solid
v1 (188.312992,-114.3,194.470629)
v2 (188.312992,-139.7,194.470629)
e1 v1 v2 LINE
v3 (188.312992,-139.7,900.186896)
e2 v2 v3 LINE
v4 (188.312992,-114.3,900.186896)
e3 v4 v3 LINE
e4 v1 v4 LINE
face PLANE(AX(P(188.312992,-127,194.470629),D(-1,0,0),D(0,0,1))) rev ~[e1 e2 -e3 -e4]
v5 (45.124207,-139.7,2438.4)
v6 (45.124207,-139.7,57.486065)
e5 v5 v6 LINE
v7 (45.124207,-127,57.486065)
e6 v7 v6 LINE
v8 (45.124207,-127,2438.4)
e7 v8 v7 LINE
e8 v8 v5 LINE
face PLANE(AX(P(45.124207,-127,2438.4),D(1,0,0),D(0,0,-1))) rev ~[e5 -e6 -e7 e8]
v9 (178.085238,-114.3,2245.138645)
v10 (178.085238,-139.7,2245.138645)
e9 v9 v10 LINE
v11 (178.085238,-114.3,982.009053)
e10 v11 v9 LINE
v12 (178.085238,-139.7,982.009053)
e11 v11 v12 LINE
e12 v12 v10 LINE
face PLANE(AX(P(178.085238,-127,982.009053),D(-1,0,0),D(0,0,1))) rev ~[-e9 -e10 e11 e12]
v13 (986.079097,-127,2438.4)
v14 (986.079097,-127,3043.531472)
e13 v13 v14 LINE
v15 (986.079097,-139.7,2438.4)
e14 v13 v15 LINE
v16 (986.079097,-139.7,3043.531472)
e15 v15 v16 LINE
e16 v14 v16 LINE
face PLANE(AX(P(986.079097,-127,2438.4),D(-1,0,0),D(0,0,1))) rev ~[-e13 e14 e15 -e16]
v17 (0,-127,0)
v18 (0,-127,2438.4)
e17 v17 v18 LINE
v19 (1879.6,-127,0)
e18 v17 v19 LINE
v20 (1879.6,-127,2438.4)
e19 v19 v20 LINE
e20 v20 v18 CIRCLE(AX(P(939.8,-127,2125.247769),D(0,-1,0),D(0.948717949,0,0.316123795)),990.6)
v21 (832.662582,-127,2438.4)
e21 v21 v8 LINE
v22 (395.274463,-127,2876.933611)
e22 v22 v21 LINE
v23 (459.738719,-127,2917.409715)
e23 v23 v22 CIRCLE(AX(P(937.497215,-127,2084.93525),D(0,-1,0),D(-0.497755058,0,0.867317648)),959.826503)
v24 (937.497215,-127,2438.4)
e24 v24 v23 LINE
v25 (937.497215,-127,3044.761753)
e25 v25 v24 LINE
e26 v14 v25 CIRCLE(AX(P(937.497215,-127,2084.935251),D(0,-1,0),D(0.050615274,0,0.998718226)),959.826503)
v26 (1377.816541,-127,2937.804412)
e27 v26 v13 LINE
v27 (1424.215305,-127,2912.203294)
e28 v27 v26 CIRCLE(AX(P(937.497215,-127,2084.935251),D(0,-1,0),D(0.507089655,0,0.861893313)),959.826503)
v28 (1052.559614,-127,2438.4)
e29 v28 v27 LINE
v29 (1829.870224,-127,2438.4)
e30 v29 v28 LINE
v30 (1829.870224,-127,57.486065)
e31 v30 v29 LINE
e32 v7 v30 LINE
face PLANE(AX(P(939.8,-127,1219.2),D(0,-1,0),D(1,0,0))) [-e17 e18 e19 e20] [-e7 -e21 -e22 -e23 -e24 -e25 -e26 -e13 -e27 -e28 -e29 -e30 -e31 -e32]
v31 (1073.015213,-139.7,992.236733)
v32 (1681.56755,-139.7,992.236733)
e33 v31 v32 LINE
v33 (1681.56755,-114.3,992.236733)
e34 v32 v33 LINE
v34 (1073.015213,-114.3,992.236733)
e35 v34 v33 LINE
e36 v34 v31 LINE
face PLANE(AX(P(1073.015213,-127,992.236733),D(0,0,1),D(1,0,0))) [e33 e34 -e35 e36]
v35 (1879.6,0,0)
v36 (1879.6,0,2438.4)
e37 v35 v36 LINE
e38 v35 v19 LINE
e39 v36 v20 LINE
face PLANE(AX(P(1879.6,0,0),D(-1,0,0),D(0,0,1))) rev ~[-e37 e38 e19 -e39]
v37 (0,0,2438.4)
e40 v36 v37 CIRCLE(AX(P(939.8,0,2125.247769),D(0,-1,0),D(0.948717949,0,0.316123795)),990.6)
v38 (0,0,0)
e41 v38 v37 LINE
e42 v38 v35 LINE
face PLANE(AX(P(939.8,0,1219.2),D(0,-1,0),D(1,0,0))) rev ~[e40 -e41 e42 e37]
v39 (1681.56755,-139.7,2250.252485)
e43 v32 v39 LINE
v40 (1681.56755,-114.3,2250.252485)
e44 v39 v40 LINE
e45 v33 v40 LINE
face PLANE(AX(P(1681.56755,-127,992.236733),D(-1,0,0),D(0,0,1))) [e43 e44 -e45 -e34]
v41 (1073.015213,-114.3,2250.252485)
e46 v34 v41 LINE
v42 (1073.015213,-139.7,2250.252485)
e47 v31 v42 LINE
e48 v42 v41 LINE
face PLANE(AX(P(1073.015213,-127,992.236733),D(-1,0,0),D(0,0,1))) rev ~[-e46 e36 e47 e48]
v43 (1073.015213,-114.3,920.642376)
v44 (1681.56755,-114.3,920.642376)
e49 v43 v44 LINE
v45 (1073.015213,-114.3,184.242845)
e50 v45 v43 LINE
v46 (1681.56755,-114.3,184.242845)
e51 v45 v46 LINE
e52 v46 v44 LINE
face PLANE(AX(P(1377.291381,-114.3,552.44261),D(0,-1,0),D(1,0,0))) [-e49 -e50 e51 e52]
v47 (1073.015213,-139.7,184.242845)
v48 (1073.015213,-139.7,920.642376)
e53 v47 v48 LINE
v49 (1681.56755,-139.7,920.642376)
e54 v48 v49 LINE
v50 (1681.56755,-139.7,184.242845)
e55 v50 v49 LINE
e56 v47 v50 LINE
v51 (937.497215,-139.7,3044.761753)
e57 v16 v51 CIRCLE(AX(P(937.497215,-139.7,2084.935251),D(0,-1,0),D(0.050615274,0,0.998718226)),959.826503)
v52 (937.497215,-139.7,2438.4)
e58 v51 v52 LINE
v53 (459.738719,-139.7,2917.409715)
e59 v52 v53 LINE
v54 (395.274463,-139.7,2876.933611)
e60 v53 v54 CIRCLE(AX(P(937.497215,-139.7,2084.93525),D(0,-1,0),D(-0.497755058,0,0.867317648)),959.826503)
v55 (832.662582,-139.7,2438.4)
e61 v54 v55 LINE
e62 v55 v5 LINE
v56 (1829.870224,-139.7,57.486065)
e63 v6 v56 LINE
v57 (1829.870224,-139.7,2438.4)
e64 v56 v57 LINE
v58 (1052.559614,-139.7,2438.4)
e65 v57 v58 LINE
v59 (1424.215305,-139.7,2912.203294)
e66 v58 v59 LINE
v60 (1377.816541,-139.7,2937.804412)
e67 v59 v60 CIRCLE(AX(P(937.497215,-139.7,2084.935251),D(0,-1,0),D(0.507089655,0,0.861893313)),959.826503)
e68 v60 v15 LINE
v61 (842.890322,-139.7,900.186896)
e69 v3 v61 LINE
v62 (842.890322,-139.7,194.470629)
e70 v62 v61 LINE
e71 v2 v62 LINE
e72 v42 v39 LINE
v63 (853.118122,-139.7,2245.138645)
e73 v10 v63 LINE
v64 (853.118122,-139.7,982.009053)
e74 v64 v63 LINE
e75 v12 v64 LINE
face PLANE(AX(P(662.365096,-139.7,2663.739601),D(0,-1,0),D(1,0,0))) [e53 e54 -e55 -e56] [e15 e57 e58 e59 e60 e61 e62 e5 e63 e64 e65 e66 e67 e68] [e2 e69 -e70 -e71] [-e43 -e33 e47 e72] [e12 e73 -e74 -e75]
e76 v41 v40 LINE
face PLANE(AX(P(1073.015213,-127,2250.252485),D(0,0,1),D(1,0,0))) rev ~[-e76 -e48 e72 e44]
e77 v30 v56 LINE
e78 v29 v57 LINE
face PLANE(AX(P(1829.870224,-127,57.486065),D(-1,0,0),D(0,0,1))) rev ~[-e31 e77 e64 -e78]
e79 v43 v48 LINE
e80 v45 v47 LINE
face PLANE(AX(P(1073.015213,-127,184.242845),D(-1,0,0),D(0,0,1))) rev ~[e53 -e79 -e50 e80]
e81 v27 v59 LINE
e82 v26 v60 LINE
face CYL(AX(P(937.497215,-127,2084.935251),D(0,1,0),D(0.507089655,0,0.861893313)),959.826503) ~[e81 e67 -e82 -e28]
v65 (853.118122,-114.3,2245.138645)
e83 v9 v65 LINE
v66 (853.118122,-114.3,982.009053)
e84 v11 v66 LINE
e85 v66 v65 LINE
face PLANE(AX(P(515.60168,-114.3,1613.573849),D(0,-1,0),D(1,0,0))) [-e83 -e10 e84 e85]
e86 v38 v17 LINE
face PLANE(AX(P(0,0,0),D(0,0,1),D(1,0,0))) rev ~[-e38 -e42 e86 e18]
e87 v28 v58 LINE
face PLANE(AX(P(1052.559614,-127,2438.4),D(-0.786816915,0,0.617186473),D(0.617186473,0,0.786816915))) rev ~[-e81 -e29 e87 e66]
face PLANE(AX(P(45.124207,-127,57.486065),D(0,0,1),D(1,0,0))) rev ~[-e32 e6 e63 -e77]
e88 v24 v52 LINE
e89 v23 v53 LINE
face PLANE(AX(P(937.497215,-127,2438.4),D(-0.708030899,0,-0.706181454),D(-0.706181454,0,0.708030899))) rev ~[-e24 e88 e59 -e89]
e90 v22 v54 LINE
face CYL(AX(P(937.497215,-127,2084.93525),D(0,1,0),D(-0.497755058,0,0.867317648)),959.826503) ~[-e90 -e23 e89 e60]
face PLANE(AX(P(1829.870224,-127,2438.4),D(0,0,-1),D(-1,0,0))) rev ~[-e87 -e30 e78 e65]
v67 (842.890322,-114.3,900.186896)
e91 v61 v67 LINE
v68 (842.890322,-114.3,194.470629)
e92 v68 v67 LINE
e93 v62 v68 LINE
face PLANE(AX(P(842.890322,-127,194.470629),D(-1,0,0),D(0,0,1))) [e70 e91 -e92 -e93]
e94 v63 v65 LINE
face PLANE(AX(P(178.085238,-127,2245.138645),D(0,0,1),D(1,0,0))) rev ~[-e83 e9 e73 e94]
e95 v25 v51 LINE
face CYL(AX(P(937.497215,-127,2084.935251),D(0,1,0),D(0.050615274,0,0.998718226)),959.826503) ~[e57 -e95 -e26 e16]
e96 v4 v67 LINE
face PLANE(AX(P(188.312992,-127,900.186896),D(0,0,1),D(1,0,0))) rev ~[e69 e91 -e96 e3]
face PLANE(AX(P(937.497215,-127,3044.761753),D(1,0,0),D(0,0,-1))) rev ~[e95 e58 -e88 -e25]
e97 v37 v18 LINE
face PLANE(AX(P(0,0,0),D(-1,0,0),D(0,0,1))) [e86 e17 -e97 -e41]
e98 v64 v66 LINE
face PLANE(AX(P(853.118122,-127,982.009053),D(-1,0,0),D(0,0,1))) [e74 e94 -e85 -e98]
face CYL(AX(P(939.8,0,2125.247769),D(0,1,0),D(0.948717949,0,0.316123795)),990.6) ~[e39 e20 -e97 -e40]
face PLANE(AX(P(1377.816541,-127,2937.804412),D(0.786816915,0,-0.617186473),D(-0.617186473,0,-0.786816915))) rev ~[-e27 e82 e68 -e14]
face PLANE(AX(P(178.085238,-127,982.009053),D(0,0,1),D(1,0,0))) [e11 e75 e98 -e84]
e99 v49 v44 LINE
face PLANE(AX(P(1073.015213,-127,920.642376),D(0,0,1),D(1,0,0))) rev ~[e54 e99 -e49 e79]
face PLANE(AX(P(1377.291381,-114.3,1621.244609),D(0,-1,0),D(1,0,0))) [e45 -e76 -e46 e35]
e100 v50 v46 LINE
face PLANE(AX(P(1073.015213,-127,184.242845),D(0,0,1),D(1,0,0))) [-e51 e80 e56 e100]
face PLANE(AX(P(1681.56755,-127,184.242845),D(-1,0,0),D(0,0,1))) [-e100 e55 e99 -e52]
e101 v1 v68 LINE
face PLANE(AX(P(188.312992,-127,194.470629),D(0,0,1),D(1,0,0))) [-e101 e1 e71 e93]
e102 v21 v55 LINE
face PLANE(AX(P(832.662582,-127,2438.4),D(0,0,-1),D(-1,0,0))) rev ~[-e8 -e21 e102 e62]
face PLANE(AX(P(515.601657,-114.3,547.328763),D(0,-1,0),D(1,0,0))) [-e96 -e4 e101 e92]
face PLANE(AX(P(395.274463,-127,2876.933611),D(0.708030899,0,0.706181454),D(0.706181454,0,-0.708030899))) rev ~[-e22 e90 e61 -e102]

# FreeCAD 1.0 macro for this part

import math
import FreeCAD as App
import Part
import Sketcher

V = App.Vector
Q = App.Units.Quantity


def add_polygon(sketch, points):
    """Adds a closed chain of lines whose ends are joined by coincident constraints."""
    first, n = sketch.GeometryCount, len(points)
    for a, b in zip(points, points[1:] + points[:1]):
        sketch.addGeometry(Part.LineSegment(App.Vector(*a, 0), App.Vector(*b, 0)), False)
    for i in range(n):
        sketch.addConstraint(Sketcher.Constraint("Coincident", first + i, 2, first + (i + 1) % n, 1))

doc = App.newDocument("Part")
params = doc.addObject("Spreadsheet::Sheet", "Params")
for row, (alias, value) in enumerate([
    ("sketch1_radius", "39 in"),
    ("sketch1_width", "74 in"),
    ("sketch1_height", "96 in"),
    ("pad1_length", "5 in"),
    ("pocket1_length", "0.5 in"),
    ("pad2_length", "0.5 in"),
], start=1):
    params.set(f"A{row}", alias)
    params.set(f"B{row}", "=" + value)
    params.setAlias(f"B{row}", alias)

body = doc.addObject("PartDesign::Body", "Body")

# Sketch on XZ plane
sketch1 = body.newObject("Sketcher::SketchObject", "Sketch")
sketch1.AttachmentSupport = (doc.getObject("XZ_Plane"), [""])
sketch1.MapMode = "FlatFace"
sketch1.addGeometry(Part.LineSegment(V(0, 2438, 0), V(0, 0, 0)), False)
sketch1.addGeometry(Part.LineSegment(V(0, 0, 0), V(1880, 0, 0)), False)
sketch1.addGeometry(Part.LineSegment(V(1880, 0, 0), V(1880, 2438, 0)), False)
sketch1.addGeometry(Part.ArcOfCircle(Part.Circle(V(940, 2125, 0), V(0, 0, 1), 991), math.radians(18), math.radians(162)), False)
sketch1.addConstraint(Sketcher.Constraint("Coincident", 0, 2, 1, 1))
sketch1.addConstraint(Sketcher.Constraint("Coincident", 1, 2, 2, 1))
sketch1.addConstraint(Sketcher.Constraint("Coincident", 2, 2, 3, 1))
sketch1.addConstraint(Sketcher.Constraint("Coincident", 3, 2, 0, 1))
sketch1.addConstraint(Sketcher.Constraint("Vertical", 0))
sketch1.addConstraint(Sketcher.Constraint("Horizontal", 1))
sketch1.addConstraint(Sketcher.Constraint("Vertical", 2))
sketch1.addConstraint(Sketcher.Constraint("Coincident", 0, 2, -1, 1))
sketch1.addConstraint(Sketcher.Constraint("Equal", 0, 2))
sketch1.addConstraint(Sketcher.Constraint("Radius", 3, Q("39 in")))
sketch1.addConstraint(Sketcher.Constraint("DistanceX", 1, 1, 1, 2, Q("74 in")))
sketch1.addConstraint(Sketcher.Constraint("DistanceY", 0, 2, 0, 1, Q("96 in")))
sketch1.setExpression("Constraints[9]", "Params.sketch1_radius")
sketch1.setExpression("Constraints[10]", "Params.sketch1_width")
sketch1.setExpression("Constraints[11]", "Params.sketch1_height")
pad1 = body.newObject("PartDesign::Pad", "Pad")
pad1.Profile = sketch1
pad1.setExpression("Length", "Params.pad1_length")

# Sketch on XZ plane
sketch2 = body.newObject("Sketcher::SketchObject", "Sketch001")
sketch2.AttachmentSupport = (doc.getObject("XZ_Plane"), [""])
sketch2.MapMode = "FlatFace"
sketch2.AttachmentOffset = App.Placement(V(0, 0, 5 * 25.4), App.Rotation())
add_polygon(sketch2, [(178, 2245), (178, 982), (853, 982), (853, 2245)])  # lines 0-3
add_polygon(sketch2, [(1073, 2250), (1073, 992), (1682, 992), (1682, 2250)])  # lines 4-7
add_polygon(sketch2, [(1073, 921), (1073, 184), (1682, 184), (1682, 921)])  # lines 8-11
add_polygon(sketch2, [(188, 900), (188, 194), (843, 194), (843, 900)])  # lines 12-15
sketch2.addConstraint(Sketcher.Constraint("Vertical", 0))
sketch2.addConstraint(Sketcher.Constraint("Horizontal", 1))
sketch2.addConstraint(Sketcher.Constraint("Vertical", 2))
sketch2.addConstraint(Sketcher.Constraint("Horizontal", 3))
sketch2.addConstraint(Sketcher.Constraint("Vertical", 4))
sketch2.addConstraint(Sketcher.Constraint("Horizontal", 5))
sketch2.addConstraint(Sketcher.Constraint("Vertical", 6))
sketch2.addConstraint(Sketcher.Constraint("Horizontal", 7))
sketch2.addConstraint(Sketcher.Constraint("Vertical", 8))
sketch2.addConstraint(Sketcher.Constraint("Horizontal", 9))
sketch2.addConstraint(Sketcher.Constraint("Vertical", 10))
sketch2.addConstraint(Sketcher.Constraint("Horizontal", 11))
sketch2.addConstraint(Sketcher.Constraint("Vertical", 12))
sketch2.addConstraint(Sketcher.Constraint("Horizontal", 13))
sketch2.addConstraint(Sketcher.Constraint("Vertical", 14))
sketch2.addConstraint(Sketcher.Constraint("Horizontal", 15))
sketch2.addConstraint(Sketcher.Constraint("Vertical", 7, 2, 8, 2))
sketch2.addConstraint(Sketcher.Constraint("Vertical", 6, 2, 9, 2))
sketch2.addConstraint(Sketcher.Constraint("DistanceX", 13, 1, 13, 2, Q("654.57733 mm")))
sketch2.addConstraint(Sketcher.Constraint("DistanceY", 0, 2, 0, 1, Q("1263.129592 mm")))
sketch2.addConstraint(Sketcher.Constraint("DistanceY", 4, 2, 4, 1, Q("1258.015752 mm")))
sketch2.addConstraint(Sketcher.Constraint("DistanceY", 8, 2, 8, 1, Q("736.399531 mm")))
sketch2.addConstraint(Sketcher.Constraint("DistanceX", 13, 2, 1, 2, Q("10.227799 mm")))
sketch2.addConstraint(Sketcher.Constraint("DistanceX", 1, 1, 1, 2, Q("675.032884 mm")))
sketch2.addConstraint(Sketcher.Constraint("DistanceX", 5, 1, 5, 2, Q("608.552337 mm")))
sketch2.addConstraint(Sketcher.Constraint("DistanceY", 12, 2, 12, 1, Q("705.716267 mm")))
sketch2.addConstraint(Sketcher.Constraint("DistanceX", -1, 1, 1, 2, Q("853.118122 mm")))
sketch2.addConstraint(Sketcher.Constraint("DistanceX", -1, 1, 5, 2, Q("1681.56755 mm")))
sketch2.addConstraint(Sketcher.Constraint("DistanceY", -1, 1, 12, 2, Q("194.470629 mm")))
sketch2.addConstraint(Sketcher.Constraint("DistanceY", 1, 2, 4, 2, Q("10.22768 mm")))
sketch2.addConstraint(Sketcher.Constraint("DistanceY", 8, 2, 4, 2, Q("807.993889 mm")))
sketch2.addConstraint(Sketcher.Constraint("DistanceY", 14, 2, 11, 2, Q("20.45548 mm")))
pocket1 = body.newObject("PartDesign::Pocket", "Pocket")
pocket1.Profile = sketch2
pocket1.setExpression("Length", "Params.pocket1_length")

# Sketch on XZ plane
sketch3 = body.newObject("Sketcher::SketchObject", "Sketch002")
sketch3.AttachmentSupport = (doc.getObject("XZ_Plane"), [""])
sketch3.MapMode = "FlatFace"
sketch3.AttachmentOffset = App.Placement(V(0, 0, 5 * 25.4), App.Rotation())
sketch3.addGeometry(Part.LineSegment(V(395, 2877, 0), V(833, 2438, 0)), False)  # 0
sketch3.addGeometry(Part.LineSegment(V(833, 2438, 0), V(45, 2438, 0)), False)  # 1
sketch3.addGeometry(Part.LineSegment(V(45, 2438, 0), V(45, 57, 0)), False)  # 2
sketch3.addGeometry(Part.LineSegment(V(45, 57, 0), V(1830, 57, 0)), False)  # 3
sketch3.addGeometry(Part.LineSegment(V(1830, 57, 0), V(1830, 2438, 0)), False)  # 4
sketch3.addGeometry(Part.LineSegment(V(1830, 2438, 0), V(1053, 2438, 0)), False)  # 5
sketch3.addGeometry(Part.LineSegment(V(1053, 2438, 0), V(1424, 2912, 0)), False)  # 6
sketch3.addGeometry(Part.ArcOfCircle(Part.Circle(V(937, 2085, 0), V(0, 0, 1), 960), math.radians(59.53), math.radians(62.69)), False)  # 7
sketch3.addGeometry(Part.LineSegment(V(1378, 2938, 0), V(986, 2438, 0)), False)  # 8
sketch3.addGeometry(Part.LineSegment(V(986, 2438, 0), V(986, 3044, 0)), False)  # 9
sketch3.addGeometry(Part.ArcOfCircle(Part.Circle(V(937, 2085, 0), V(0, 0, 1), 960), math.radians(87.1), math.radians(90)), False)  # 10
sketch3.addGeometry(Part.LineSegment(V(937, 3045, 0), V(937, 2438, 0)), False)  # 11
sketch3.addGeometry(Part.LineSegment(V(937, 2438, 0), V(460, 2917, 0)), False)  # 12
sketch3.addGeometry(Part.ArcOfCircle(Part.Circle(V(937, 2085, 0), V(0, 0, 1), 960), math.radians(119.85), math.radians(124.4)), False)  # 13
add_polygon(sketch3, [(843, 194), (188, 194), (188, 900), (843, 900)])  # lines 14-17
add_polygon(sketch3, [(1682, 184), (1073, 184), (1073, 921), (1682, 921)])  # lines 18-21
add_polygon(sketch3, [(853, 982), (178, 982), (178, 2245), (853, 2245)])  # lines 22-25
add_polygon(sketch3, [(1682, 992), (1073, 992), (1073, 2250), (1682, 2250)])  # lines 26-29
sketch3.addConstraint(Sketcher.Constraint("Coincident", 0, 2, 1, 1))
sketch3.addConstraint(Sketcher.Constraint("Coincident", 1, 2, 2, 1))
sketch3.addConstraint(Sketcher.Constraint("Coincident", 2, 2, 3, 1))
sketch3.addConstraint(Sketcher.Constraint("Coincident", 3, 2, 4, 1))
sketch3.addConstraint(Sketcher.Constraint("Coincident", 4, 2, 5, 1))
sketch3.addConstraint(Sketcher.Constraint("Coincident", 5, 2, 6, 1))
sketch3.addConstraint(Sketcher.Constraint("Coincident", 6, 2, 7, 1))
sketch3.addConstraint(Sketcher.Constraint("Coincident", 7, 2, 8, 1))
sketch3.addConstraint(Sketcher.Constraint("Coincident", 8, 2, 9, 1))
sketch3.addConstraint(Sketcher.Constraint("Coincident", 9, 2, 10, 1))
sketch3.addConstraint(Sketcher.Constraint("Coincident", 10, 2, 11, 1))
sketch3.addConstraint(Sketcher.Constraint("Coincident", 11, 2, 12, 1))
sketch3.addConstraint(Sketcher.Constraint("Coincident", 12, 2, 13, 1))
sketch3.addConstraint(Sketcher.Constraint("Coincident", 13, 2, 0, 1))
sketch3.addConstraint(Sketcher.Constraint("Horizontal", 1))
sketch3.addConstraint(Sketcher.Constraint("Vertical", 2))
sketch3.addConstraint(Sketcher.Constraint("Horizontal", 3))
sketch3.addConstraint(Sketcher.Constraint("Vertical", 4))
sketch3.addConstraint(Sketcher.Constraint("Horizontal", 5))
sketch3.addConstraint(Sketcher.Constraint("Vertical", 9))
sketch3.addConstraint(Sketcher.Constraint("Vertical", 11))
sketch3.addConstraint(Sketcher.Constraint("Horizontal", 14))
sketch3.addConstraint(Sketcher.Constraint("Vertical", 15))
sketch3.addConstraint(Sketcher.Constraint("Horizontal", 16))
sketch3.addConstraint(Sketcher.Constraint("Vertical", 17))
sketch3.addConstraint(Sketcher.Constraint("Horizontal", 18))
sketch3.addConstraint(Sketcher.Constraint("Vertical", 19))
sketch3.addConstraint(Sketcher.Constraint("Horizontal", 20))
sketch3.addConstraint(Sketcher.Constraint("Vertical", 21))
sketch3.addConstraint(Sketcher.Constraint("Horizontal", 22))
sketch3.addConstraint(Sketcher.Constraint("Vertical", 23))
sketch3.addConstraint(Sketcher.Constraint("Horizontal", 24))
sketch3.addConstraint(Sketcher.Constraint("Vertical", 25))
sketch3.addConstraint(Sketcher.Constraint("Horizontal", 26))
sketch3.addConstraint(Sketcher.Constraint("Vertical", 27))
sketch3.addConstraint(Sketcher.Constraint("Horizontal", 28))
sketch3.addConstraint(Sketcher.Constraint("Vertical", 29))
sketch3.addConstraint(Sketcher.Constraint("Coincident", 10, 3, 7, 3))
sketch3.addConstraint(Sketcher.Constraint("Coincident", 13, 3, 7, 3))
sketch3.addConstraint(Sketcher.Constraint("Equal", 7, 10))
sketch3.addConstraint(Sketcher.Constraint("Equal", 10, 13))
sketch3.addConstraint(Sketcher.Constraint("Parallel", 6, 8))
sketch3.addConstraint(Sketcher.Constraint("Parallel", 0, 12))
sketch3.addConstraint(Sketcher.Constraint("Horizontal", 1, 2, 4, 2))
sketch3.addConstraint(Sketcher.Constraint("Horizontal", 5, 2, 8, 2))
sketch3.addConstraint(Sketcher.Constraint("Horizontal", 8, 2, 11, 2))
sketch3.addConstraint(Sketcher.Constraint("Vertical", 19, 2, 26, 2))
sketch3.addConstraint(Sketcher.Constraint("Vertical", 21, 2, 28, 2))
sketch3.addConstraint(Sketcher.Constraint("DistanceY", -1, 1, 0, 2, Q("96 in")))
sketch3.addConstraint(Sketcher.Constraint("Radius", 7, Q("959.826503 mm")))
sketch3.addConstraint(Sketcher.Constraint("DistanceX", 5, 2, 5, 1, Q("777.31061 mm")))
sketch3.addConstraint(Sketcher.Constraint("DistanceX", 14, 2, 14, 1, Q("654.57733 mm")))
sketch3.addConstraint(Sketcher.Constraint("DistanceY", 19, 1, 19, 2, Q("736.399531 mm")))
sketch3.addConstraint(Sketcher.Constraint("DistanceY", 23, 1, 23, 2, Q("1263.129592 mm")))
sketch3.addConstraint(Sketcher.Constraint("DistanceY", 27, 1, 27, 2, Q("1258.015752 mm")))
sketch3.addConstraint(Sketcher.Constraint("DistanceX", 7, 3, 5, 2, Q("115.062399 mm")))
sketch3.addConstraint(Sketcher.Constraint("DistanceX", 11, 2, 5, 2, Q("115.062399 mm")))
sketch3.addConstraint(Sketcher.Constraint("DistanceX", 17, 2, 3, 2, Q("986.979902 mm")))
sketch3.addConstraint(Sketcher.Constraint("DistanceX", 16, 2, 25, 2, Q("10.227799 mm")))
sketch3.addConstraint(Sketcher.Constraint("DistanceX", 5, 2, 27, 2, Q("20.455599 mm")))
sketch3.addConstraint(Sketcher.Constraint("Distance", 6, Q("602.177312 mm")))
sketch3.addConstraint(Sketcher.Constraint("Distance", 8, Q("634.714891 mm")))
sketch3.addConstraint(Sketcher.Constraint("Distance", 12, Q("676.537869 mm")))
sketch3.addConstraint(Sketcher.Constraint("DistanceX", 1, 2, 1, 1, Q("787.538376 mm")))
sketch3.addConstraint(Sketcher.Constraint("DistanceX", 3, 1, 3, 2, Q("1784.746017 mm")))
sketch3.addConstraint(Sketcher.Constraint("DistanceX", 18, 2, 18, 1, Q("608.552337 mm")))
sketch3.addConstraint(Sketcher.Constraint("DistanceX", 22, 2, 22, 1, Q("675.032884 mm")))
sketch3.addConstraint(Sketcher.Constraint("DistanceY", 2, 2, 2, 1, Q("2380.913935 mm")))
sketch3.addConstraint(Sketcher.Constraint("DistanceY", 9, 1, 9, 2, Q("605.131472 mm")))
sketch3.addConstraint(Sketcher.Constraint("DistanceY", 15, 1, 15, 2, Q("705.716267 mm")))
sketch3.addConstraint(Sketcher.Constraint("DistanceX", -1, 1, 12, 2, Q("459.738719 mm")))
sketch3.addConstraint(Sketcher.Constraint("DistanceY", -1, 1, 14, 2, Q("194.470629 mm")))
sketch3.addConstraint(Sketcher.Constraint("DistanceY", 18, 2, 16, 2, Q("715.944052 mm")))
sketch3.addConstraint(Sketcher.Constraint("DistanceY", 2, 2, 22, 2, Q("924.522988 mm")))
sketch3.addConstraint(Sketcher.Constraint("DistanceY", 25, 2, 26, 2, Q("10.22768 mm")))
pad2 = body.newObject("PartDesign::Pad", "Pad001")
pad2.Profile = sketch3
pad2.setExpression("Length", "Params.pad2_length")

doc.recompute()
